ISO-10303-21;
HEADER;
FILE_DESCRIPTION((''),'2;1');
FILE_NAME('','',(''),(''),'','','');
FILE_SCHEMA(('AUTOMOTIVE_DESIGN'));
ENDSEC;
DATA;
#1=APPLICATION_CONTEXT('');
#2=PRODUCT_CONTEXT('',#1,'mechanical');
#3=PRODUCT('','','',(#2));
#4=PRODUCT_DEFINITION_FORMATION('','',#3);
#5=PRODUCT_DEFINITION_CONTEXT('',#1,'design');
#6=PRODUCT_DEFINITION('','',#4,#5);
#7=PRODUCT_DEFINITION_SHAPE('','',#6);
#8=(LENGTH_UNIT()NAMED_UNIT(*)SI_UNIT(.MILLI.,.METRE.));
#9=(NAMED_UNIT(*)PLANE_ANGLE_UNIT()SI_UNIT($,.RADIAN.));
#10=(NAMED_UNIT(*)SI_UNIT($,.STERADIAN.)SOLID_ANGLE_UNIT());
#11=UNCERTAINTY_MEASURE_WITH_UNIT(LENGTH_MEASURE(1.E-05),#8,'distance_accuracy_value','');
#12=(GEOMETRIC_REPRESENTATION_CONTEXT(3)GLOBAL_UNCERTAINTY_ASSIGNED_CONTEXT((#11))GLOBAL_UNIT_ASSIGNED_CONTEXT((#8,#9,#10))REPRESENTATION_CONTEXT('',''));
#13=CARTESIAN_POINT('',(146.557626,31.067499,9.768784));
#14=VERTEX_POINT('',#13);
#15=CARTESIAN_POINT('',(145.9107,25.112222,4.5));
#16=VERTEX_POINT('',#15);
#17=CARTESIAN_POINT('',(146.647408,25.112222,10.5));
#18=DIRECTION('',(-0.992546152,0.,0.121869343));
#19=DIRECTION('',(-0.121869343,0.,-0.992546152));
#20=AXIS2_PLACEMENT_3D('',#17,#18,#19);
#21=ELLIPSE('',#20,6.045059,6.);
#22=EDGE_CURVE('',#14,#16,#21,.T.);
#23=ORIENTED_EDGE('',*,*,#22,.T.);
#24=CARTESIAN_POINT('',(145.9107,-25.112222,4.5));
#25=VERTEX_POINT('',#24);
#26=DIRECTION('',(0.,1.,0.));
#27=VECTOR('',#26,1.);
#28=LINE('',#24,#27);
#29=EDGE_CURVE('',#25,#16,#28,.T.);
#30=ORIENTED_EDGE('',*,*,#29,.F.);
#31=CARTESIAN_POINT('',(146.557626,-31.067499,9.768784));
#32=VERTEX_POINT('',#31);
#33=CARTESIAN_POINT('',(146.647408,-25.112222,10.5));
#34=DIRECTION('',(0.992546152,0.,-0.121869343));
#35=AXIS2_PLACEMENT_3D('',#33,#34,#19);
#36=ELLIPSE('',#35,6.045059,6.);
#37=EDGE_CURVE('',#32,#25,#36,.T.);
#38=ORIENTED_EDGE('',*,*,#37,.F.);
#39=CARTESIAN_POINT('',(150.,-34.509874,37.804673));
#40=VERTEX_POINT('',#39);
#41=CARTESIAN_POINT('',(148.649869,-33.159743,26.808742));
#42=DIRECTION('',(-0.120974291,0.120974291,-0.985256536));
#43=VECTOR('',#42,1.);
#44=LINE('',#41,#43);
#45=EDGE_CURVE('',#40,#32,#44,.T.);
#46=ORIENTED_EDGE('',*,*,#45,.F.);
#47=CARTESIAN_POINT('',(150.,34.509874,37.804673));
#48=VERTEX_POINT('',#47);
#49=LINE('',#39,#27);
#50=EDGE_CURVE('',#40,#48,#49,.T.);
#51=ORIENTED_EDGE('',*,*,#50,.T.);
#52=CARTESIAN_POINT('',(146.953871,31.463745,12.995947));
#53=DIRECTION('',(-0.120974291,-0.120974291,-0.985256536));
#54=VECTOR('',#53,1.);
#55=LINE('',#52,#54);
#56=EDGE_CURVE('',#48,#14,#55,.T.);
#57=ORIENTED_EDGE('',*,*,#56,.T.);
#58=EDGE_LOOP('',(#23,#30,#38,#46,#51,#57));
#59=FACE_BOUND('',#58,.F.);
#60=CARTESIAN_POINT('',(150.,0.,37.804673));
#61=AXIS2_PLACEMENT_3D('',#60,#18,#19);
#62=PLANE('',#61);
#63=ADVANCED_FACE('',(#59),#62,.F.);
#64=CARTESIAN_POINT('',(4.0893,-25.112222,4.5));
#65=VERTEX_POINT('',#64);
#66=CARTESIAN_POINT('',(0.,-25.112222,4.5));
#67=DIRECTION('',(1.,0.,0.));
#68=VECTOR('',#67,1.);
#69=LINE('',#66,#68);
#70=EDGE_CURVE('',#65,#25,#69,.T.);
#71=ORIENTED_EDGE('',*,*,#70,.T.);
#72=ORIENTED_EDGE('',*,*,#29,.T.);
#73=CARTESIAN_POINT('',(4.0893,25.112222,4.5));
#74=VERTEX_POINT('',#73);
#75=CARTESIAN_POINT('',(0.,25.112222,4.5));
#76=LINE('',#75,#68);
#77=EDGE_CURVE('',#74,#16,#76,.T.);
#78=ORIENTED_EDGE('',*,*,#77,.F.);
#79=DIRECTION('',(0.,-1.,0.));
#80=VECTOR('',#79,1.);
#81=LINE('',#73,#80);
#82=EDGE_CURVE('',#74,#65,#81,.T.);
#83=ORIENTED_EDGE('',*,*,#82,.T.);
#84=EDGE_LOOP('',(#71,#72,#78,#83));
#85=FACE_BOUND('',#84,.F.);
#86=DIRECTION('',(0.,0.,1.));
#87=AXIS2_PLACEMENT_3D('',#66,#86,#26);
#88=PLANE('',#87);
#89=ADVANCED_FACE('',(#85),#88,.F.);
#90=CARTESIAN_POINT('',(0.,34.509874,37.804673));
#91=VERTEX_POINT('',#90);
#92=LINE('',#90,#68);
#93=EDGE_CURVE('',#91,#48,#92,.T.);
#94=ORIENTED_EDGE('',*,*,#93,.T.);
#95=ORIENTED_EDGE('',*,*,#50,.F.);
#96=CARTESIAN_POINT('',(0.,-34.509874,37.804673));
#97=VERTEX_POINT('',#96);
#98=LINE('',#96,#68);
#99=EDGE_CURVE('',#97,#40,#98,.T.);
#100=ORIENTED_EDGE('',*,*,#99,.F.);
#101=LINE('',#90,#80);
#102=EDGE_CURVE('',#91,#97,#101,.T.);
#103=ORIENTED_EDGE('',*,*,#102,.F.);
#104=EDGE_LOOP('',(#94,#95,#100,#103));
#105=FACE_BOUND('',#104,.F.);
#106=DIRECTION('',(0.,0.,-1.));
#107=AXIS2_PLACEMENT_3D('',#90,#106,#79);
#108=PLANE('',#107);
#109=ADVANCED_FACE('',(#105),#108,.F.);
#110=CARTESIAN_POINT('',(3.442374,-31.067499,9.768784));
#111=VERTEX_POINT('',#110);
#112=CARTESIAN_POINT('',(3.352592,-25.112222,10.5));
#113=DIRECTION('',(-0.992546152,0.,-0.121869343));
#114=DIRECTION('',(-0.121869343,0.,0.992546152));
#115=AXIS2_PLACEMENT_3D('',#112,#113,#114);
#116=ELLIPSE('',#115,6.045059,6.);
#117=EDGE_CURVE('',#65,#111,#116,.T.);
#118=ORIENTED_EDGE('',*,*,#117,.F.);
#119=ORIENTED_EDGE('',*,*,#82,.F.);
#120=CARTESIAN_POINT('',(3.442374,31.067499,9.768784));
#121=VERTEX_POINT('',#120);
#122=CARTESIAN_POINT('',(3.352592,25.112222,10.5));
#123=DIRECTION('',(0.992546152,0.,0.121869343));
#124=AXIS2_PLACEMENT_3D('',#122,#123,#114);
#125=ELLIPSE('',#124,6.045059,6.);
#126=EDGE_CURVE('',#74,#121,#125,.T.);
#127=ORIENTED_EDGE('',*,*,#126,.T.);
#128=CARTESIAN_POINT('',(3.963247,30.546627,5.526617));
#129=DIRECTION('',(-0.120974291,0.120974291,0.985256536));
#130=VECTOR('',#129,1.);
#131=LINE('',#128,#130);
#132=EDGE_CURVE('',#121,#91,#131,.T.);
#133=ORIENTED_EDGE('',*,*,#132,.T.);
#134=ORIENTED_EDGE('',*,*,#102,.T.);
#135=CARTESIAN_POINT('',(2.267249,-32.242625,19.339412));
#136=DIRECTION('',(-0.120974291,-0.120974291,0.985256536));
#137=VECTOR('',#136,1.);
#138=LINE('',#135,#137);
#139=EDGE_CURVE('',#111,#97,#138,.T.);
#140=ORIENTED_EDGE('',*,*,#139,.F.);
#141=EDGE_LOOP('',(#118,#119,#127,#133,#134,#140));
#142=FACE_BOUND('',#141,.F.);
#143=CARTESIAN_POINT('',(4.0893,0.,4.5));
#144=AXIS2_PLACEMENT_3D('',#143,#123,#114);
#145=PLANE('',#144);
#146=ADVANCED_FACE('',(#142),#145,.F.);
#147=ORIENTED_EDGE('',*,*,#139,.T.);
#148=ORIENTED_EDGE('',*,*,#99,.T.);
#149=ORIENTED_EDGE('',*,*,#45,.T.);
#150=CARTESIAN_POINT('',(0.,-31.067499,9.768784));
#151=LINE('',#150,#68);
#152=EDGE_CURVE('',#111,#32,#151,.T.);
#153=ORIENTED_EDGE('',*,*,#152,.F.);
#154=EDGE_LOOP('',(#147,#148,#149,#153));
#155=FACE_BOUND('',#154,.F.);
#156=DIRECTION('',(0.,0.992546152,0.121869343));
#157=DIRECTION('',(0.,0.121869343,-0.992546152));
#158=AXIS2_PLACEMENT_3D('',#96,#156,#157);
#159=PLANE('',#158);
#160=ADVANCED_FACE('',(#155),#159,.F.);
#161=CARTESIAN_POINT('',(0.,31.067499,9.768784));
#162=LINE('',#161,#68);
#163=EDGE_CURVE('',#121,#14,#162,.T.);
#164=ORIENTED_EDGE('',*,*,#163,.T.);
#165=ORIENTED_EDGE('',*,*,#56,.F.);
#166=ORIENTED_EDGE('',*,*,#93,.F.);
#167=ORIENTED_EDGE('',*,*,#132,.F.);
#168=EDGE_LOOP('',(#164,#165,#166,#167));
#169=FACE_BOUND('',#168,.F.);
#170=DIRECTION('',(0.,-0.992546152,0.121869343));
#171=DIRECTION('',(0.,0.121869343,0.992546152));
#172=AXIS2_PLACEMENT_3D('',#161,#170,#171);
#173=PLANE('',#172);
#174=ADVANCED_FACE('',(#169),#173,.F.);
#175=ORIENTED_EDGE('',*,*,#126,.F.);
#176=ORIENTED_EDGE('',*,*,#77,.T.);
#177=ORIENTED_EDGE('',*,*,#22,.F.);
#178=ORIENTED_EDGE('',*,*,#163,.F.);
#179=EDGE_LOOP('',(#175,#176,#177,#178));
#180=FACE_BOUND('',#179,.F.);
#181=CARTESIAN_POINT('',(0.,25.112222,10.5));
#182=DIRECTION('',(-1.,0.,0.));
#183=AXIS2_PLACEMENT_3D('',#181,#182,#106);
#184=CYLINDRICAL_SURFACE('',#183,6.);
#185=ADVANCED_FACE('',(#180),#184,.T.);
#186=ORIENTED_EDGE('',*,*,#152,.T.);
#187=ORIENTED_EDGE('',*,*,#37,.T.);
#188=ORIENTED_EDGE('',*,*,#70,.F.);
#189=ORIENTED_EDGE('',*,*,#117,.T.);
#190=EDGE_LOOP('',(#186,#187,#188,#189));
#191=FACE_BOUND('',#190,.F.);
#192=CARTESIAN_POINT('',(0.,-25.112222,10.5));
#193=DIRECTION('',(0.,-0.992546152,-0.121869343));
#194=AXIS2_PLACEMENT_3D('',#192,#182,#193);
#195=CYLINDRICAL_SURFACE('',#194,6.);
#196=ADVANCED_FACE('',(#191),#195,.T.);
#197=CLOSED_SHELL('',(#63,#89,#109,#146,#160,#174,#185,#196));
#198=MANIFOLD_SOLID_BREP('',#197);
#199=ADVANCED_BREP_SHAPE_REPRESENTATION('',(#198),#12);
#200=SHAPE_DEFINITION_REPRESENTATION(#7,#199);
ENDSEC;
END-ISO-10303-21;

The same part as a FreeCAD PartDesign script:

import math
import FreeCAD as App
import Part
import Sketcher
from FreeCAD import Vector
Q = App.Units.Quantity

doc = App.newDocument("Part")
body = doc.addObject("PartDesign::Body", "Body")

# Sketch on YZ plane
sketch1 = doc.addObject("Sketcher::SketchObject", "Sketch")
body.addObject(sketch1)
sketch1.AttachmentSupport = (doc.YZ_Plane, [""])
sketch1.MapMode = "FlatFace"
sketch1.addGeometry([
    Part.LineSegment(Vector(35, 38, 0), Vector(-35, 38, 0)),  # 0
    Part.LineSegment(Vector(-35, 38, 0), Vector(-31, 10, 0)),  # 1
    Part.ArcOfCircle(Part.Circle(Vector(-25, 10, 0), Vector(0, 0, 1), 6), math.radians(-173), math.radians(-90)),  # 2
    Part.LineSegment(Vector(-25, 4, 0), Vector(25, 4, 0)),  # 3
    Part.ArcOfCircle(Part.Circle(Vector(25, 10, 0), Vector(0, 0, 1), 6), math.radians(-90), math.radians(-7)),  # 4
    Part.LineSegment(Vector(31, 10, 0), Vector(35, 38, 0)),  # 5
], False)
sketch1.addConstraint([
    Sketcher.Constraint("Coincident", 0, 2, 1, 1),
    Sketcher.Constraint("Tangent", 1, 2, 2, 1),
    Sketcher.Constraint("Tangent", 2, 2, 3, 1),
    Sketcher.Constraint("Tangent", 3, 2, 4, 1),
    Sketcher.Constraint("Tangent", 4, 2, 5, 1),
    Sketcher.Constraint("Coincident", 5, 2, 0, 1),
    Sketcher.Constraint("Horizontal", 0),
    Sketcher.Constraint("Horizontal", 3),
    Sketcher.Constraint("Equal", 2, 4),
    Sketcher.Constraint("Symmetric", 1, 2, 4, 2, -2),
    Sketcher.Constraint("Radius", 2, Q("6 mm")),
    Sketcher.Constraint("Angle", 1, Q("-83 deg")),
    Sketcher.Constraint("DistanceY", -1, 1, 2, 3, Q("10.5 mm")),
    Sketcher.Constraint("DistanceX", 1, 2, 4, 2, Q("62.134999 mm")),
    Sketcher.Constraint("DistanceX", 0, 2, 0, 1, Q("69.019747 mm")),
])
pad1 = doc.addObject("PartDesign::Pad", "Pad")
body.addObject(pad1)
pad1.Profile = sketch1
pad1.Length = 150

# Sketch on XZ plane
sketch2 = doc.addObject("Sketcher::SketchObject", "Sketch001")
body.addObject(sketch2)
sketch2.AttachmentSupport = (doc.XZ_Plane, [""])
sketch2.MapMode = "FlatFace"
sketch2.addGeometry([
    Part.LineSegment(Vector(4.1, 4.5, 0), Vector(0, 37.8, 0)),  # 0
    Part.LineSegment(Vector(0, 37.8, 0), Vector(0, 4.5, 0)),  # 1
    Part.LineSegment(Vector(0, 4.5, 0), Vector(4.1, 4.5, 0)),  # 2
    Part.LineSegment(Vector(150, 37.8, 0), Vector(145.9, 4.5, 0)),  # 3
    Part.LineSegment(Vector(145.9, 4.5, 0), Vector(150, 4.5, 0)),  # 4
    Part.LineSegment(Vector(150, 4.5, 0), Vector(150, 37.8, 0)),  # 5
], False)
sketch2.addConstraint([
    Sketcher.Constraint("Coincident", 0, 2, 1, 1),
    Sketcher.Constraint("Coincident", 1, 2, 2, 1),
    Sketcher.Constraint("Coincident", 2, 2, 0, 1),
    Sketcher.Constraint("Coincident", 3, 2, 4, 1),
    Sketcher.Constraint("Coincident", 4, 2, 5, 1),
    Sketcher.Constraint("Coincident", 5, 2, 3, 1),
    Sketcher.Constraint("Vertical", 1),
    Sketcher.Constraint("Horizontal", 2),
    Sketcher.Constraint("Horizontal", 4),
    Sketcher.Constraint("Vertical", 5),
    Sketcher.Constraint("PointOnObject", 0, 2, -2),
    Sketcher.Constraint("Horizontal", 2, 2, 3, 2),
    Sketcher.Constraint("Horizontal", 0, 2, 5, 2),
    Sketcher.Constraint("Equal", 2, 4),
    Sketcher.Constraint("Angle", 0, Q("97 deg")),
    Sketcher.Constraint("DistanceX", -1, 1, 4, 2, Q("150 mm")),
    Sketcher.Constraint("DistanceY", -1, 1, 1, 2, Q("4.5 mm")),
    Sketcher.Constraint("DistanceX", 2, 1, 2, 2, Q("4.0893 mm")),
])
pocket1 = doc.addObject("PartDesign::Pocket", "Pocket")
body.addObject(pocket1)
pocket1.Profile = sketch2
pocket1.Type = "ThroughAll"
pocket1.Midplane = True

doc.recompute()
